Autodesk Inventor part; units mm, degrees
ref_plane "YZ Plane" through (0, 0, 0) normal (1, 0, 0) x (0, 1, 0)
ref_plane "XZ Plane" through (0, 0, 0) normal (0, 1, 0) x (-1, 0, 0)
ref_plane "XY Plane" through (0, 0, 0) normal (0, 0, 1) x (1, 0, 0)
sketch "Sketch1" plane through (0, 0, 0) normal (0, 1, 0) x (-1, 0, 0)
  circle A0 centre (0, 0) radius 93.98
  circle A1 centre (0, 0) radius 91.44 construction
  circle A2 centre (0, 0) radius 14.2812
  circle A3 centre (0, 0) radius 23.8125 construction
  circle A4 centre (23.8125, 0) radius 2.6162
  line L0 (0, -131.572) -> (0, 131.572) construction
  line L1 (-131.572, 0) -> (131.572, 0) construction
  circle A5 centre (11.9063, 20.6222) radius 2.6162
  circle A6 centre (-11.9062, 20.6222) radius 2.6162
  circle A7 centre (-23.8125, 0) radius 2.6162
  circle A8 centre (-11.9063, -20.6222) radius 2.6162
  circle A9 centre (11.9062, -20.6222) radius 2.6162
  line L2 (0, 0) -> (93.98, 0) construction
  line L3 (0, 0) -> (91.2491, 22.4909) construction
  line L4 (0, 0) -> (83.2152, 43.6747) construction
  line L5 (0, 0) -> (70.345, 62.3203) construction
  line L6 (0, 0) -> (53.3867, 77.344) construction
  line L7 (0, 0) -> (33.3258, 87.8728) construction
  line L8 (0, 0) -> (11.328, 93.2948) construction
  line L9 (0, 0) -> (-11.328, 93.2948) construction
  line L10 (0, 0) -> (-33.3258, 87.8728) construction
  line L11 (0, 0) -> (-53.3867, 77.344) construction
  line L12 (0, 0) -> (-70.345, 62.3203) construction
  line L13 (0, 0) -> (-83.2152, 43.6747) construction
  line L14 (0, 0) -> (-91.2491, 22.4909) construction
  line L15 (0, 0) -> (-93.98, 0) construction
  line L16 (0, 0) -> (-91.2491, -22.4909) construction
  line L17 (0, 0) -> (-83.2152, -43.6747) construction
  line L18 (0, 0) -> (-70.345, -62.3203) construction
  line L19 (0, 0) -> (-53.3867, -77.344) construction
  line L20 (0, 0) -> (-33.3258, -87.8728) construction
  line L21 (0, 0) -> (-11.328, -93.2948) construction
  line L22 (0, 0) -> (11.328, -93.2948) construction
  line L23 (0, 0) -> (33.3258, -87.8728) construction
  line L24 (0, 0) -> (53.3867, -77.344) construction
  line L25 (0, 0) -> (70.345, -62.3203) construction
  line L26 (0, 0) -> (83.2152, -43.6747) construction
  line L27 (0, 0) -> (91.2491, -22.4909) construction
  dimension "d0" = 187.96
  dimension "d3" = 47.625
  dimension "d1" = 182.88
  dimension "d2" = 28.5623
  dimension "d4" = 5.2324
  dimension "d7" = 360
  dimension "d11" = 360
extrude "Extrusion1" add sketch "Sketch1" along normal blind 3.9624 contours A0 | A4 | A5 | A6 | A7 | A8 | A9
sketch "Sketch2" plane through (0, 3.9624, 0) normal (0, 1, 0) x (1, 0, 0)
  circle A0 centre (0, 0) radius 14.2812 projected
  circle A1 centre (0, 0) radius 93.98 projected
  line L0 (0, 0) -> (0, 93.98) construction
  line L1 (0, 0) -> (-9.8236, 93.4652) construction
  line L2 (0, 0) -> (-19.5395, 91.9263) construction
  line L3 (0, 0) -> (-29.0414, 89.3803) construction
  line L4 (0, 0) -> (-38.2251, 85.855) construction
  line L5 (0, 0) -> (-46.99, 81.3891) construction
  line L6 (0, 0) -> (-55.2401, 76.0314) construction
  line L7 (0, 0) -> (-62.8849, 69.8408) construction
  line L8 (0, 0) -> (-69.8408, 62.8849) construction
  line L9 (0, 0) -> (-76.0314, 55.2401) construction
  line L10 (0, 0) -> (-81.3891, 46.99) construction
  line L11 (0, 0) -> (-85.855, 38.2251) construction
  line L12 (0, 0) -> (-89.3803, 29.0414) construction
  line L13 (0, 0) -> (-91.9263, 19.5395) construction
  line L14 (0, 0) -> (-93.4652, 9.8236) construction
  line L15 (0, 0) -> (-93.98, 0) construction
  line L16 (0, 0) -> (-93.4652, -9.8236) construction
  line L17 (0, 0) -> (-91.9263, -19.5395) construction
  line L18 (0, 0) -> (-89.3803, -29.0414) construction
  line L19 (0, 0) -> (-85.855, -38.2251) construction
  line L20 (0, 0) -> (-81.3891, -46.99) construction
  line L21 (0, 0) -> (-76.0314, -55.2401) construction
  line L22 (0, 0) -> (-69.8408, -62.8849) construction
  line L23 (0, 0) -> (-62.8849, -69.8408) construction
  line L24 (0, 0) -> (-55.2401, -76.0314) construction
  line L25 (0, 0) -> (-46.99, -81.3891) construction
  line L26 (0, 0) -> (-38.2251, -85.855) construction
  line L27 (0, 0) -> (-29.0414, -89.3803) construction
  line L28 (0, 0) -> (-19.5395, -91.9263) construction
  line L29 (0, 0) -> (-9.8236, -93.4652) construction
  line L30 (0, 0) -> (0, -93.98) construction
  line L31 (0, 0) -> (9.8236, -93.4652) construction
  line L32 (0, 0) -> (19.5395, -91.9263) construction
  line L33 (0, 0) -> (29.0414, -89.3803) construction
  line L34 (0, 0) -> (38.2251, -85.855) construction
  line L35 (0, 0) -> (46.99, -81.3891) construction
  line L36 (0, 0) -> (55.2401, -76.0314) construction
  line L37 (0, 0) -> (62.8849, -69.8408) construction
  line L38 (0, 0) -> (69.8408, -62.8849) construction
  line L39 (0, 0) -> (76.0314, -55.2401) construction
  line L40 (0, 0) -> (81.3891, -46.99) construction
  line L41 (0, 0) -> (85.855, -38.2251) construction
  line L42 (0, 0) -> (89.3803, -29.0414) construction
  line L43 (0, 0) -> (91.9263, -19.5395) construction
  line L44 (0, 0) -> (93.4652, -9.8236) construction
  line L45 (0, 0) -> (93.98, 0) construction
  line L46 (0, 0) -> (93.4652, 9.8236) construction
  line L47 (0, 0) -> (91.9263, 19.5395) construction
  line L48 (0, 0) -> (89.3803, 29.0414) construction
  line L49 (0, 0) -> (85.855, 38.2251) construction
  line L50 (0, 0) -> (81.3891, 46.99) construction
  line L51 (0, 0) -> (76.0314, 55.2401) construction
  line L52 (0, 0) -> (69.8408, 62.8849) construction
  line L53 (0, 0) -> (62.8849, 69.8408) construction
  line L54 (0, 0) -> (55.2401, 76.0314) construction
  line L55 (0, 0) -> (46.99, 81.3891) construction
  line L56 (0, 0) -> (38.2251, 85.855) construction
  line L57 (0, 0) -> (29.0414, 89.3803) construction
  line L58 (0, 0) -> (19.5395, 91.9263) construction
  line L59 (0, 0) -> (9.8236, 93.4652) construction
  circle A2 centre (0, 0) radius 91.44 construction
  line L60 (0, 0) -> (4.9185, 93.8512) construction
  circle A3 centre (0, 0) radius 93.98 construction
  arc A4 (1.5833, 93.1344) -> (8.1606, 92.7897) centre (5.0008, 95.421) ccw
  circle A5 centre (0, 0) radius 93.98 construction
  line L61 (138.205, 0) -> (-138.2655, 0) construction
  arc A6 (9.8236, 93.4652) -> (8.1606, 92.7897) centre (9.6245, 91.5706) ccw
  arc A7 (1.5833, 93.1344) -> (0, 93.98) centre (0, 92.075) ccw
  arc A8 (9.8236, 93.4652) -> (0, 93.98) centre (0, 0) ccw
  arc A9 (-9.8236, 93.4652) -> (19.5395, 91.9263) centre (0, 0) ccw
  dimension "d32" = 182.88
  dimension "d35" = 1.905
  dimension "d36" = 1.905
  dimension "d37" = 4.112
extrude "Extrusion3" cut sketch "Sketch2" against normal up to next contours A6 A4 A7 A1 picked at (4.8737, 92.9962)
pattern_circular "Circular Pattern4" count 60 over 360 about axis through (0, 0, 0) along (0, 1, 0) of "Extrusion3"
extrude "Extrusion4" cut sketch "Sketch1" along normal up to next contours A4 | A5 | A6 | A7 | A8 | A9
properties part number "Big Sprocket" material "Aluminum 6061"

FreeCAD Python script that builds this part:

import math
import FreeCAD as App
import Part
import Sketcher
from FreeCAD import Vector
Q = App.Units.Quantity

doc = App.newDocument("Part")
body = doc.addObject("PartDesign::Body", "Body")

# Sketch on XZ plane
sketch1 = body.newObject("Sketcher::SketchObject", "Sketch")
sketch1.AttachmentSupport = (doc.getObject("XZ_Plane"), [""])
sketch1.MapMode = "FlatFace"
sketch1.addGeometry([
    Part.Circle(Vector(0, 0, 0), Vector(0, 0, 1), 93.98),
    Part.Circle(Vector(0, 0, 0), Vector(0, 0, 1), 14.2812),
], False)
sketch1.addConstraint([
    Sketcher.Constraint("Coincident", 0, 3, -1, 1),
    Sketcher.Constraint("Coincident", 1, 3, -1, 1),
    Sketcher.Constraint("Diameter", 0, Q("7.4 in")),
    Sketcher.Constraint("Diameter", 1, Q("1.1245 in")),
])
pad1 = body.newObject("PartDesign::Pad", "Pad")
pad1.Profile = sketch1
pad1.Length = Q("0.156 in")
pad1.Reversed = True

# Sketch on XZ plane
sketch2 = body.newObject("Sketcher::SketchObject", "Sketch001")
sketch2.AttachmentSupport = (doc.getObject("XZ_Plane"), [""])
sketch2.MapMode = "FlatFace"
sketch2.AttachmentOffset = App.Placement(Vector(0, 0, -0.156 * 25.4), App.Rotation())
sketch2.addGeometry([
    Part.ArcOfCircle(Part.Circle(Vector(9.6245, -91.5706, 0), Vector(0, 0, 1), 1.905033), math.radians(-140.213298), math.radians(-84.000912)),
    Part.ArcOfCircle(Part.Circle(Vector(0, 0, 0), Vector(0, 0, 1), 93.98), math.radians(-90), math.radians(-83.999993)),
    Part.ArcOfCircle(Part.Circle(Vector(0, -92.075, 0), Vector(0, 0, 1), 1.905037), math.radians(-90), math.radians(-33.78683)),
    Part.ArcOfCircle(Part.Circle(Vector(5.0008, -95.421, 0), Vector(0, 0, 1), 4.111915), math.radians(39.78559), math.radians(146.21409)),
], False)
sketch2.addConstraint([
    Sketcher.Constraint("Tangent", 0, 2, 1, 2),
    Sketcher.Constraint("Tangent", 1, 1, 2, 1),
    Sketcher.Constraint("Tangent", 2, 2, 3, 2),
    Sketcher.Constraint("Tangent", 3, 1, 0, 1),
    Sketcher.Constraint("Coincident", 1, 3, -1, 1),
    Sketcher.Constraint("Equal", 0, 2),
    Sketcher.Constraint("PointOnObject", 2, 3, -2),
    Sketcher.Constraint("Radius", 0, Q("0.075 in")),
    Sketcher.Constraint("Radius", 1, Q("3.7 in")),
    Sketcher.Constraint("Radius", 3, Q("0.1618898 in")),
    Sketcher.Constraint("DistanceY", 3, 3, 0, 2, Q("0.077 in")),
])
pocket1 = body.newObject("PartDesign::Pocket", "Pocket")
pocket1.Profile = sketch2
pocket1.Type = "UpToFirst"
pocket1.Reversed = True
doc.recompute()

polarpattern = body.newObject("PartDesign::PolarPattern", "PolarPattern")
polarpattern.Originals = [pocket1]
polarpattern.Axis = (doc.getObject("Y_Axis"), [""])
polarpattern.Angle = 360
polarpattern.Occurrences = 60
body.Tip = polarpattern

# Sketch on XZ plane
sketch3 = body.newObject("Sketcher::SketchObject", "Sketch002")
sketch3.AttachmentSupport = (doc.getObject("XZ_Plane"), [""])
sketch3.MapMode = "FlatFace"
sketch3.addGeometry([
    Part.Circle(Vector(-23.8125, 0, 0), Vector(0, 0, 1), 2.6162),  # 0
    Part.Circle(Vector(-11.9063, 20.6222, 0), Vector(0, 0, 1), 2.6162),  # 1
    Part.Circle(Vector(11.9062, 20.6222, 0), Vector(0, 0, 1), 2.6162),  # 2
    Part.Circle(Vector(23.8125, 0, 0), Vector(0, 0, 1), 2.6162),  # 3
    Part.Circle(Vector(11.9063, -20.6222, 0), Vector(0, 0, 1), 2.6162),  # 4
    Part.Circle(Vector(-11.9062, -20.6222, 0), Vector(0, 0, 1), 2.6162),  # 5
], False)
sketch3.addConstraint([
    Sketcher.Constraint("Equal", 0, 1),
    Sketcher.Constraint("Equal", 1, 2),
    Sketcher.Constraint("Equal", 2, 3),
    Sketcher.Constraint("Equal", 3, 4),
    Sketcher.Constraint("Equal", 4, 5),
    Sketcher.Constraint("Symmetric", 0, 3, 3, 3, -1, 1),
    Sketcher.Constraint("Symmetric", 1, 3, 4, 3, -1, 1),
    Sketcher.Constraint("Symmetric", 2, 3, 5, 3, -1, 1),
    Sketcher.Constraint("Symmetric", 1, 3, 2, 3, -2),
    Sketcher.Constraint("PointOnObject", 0, 3, -1),
    Sketcher.Constraint("Diameter", 0, Q("0.206 in")),
    Sketcher.Constraint("DistanceX", 0, 3, 3, 3, Q("1.875 in")),
    Sketcher.Constraint("DistanceX", 1, 3, -1, 1, Q("0.468752 in")),
    Sketcher.Constraint("DistanceY", -1, 1, 1, 3, Q("0.8119 in")),
])
pocket2 = body.newObject("PartDesign::Pocket", "Pocket001")
pocket2.Profile = sketch3
pocket2.Length = Q("0.156 in")

doc.recompute()
